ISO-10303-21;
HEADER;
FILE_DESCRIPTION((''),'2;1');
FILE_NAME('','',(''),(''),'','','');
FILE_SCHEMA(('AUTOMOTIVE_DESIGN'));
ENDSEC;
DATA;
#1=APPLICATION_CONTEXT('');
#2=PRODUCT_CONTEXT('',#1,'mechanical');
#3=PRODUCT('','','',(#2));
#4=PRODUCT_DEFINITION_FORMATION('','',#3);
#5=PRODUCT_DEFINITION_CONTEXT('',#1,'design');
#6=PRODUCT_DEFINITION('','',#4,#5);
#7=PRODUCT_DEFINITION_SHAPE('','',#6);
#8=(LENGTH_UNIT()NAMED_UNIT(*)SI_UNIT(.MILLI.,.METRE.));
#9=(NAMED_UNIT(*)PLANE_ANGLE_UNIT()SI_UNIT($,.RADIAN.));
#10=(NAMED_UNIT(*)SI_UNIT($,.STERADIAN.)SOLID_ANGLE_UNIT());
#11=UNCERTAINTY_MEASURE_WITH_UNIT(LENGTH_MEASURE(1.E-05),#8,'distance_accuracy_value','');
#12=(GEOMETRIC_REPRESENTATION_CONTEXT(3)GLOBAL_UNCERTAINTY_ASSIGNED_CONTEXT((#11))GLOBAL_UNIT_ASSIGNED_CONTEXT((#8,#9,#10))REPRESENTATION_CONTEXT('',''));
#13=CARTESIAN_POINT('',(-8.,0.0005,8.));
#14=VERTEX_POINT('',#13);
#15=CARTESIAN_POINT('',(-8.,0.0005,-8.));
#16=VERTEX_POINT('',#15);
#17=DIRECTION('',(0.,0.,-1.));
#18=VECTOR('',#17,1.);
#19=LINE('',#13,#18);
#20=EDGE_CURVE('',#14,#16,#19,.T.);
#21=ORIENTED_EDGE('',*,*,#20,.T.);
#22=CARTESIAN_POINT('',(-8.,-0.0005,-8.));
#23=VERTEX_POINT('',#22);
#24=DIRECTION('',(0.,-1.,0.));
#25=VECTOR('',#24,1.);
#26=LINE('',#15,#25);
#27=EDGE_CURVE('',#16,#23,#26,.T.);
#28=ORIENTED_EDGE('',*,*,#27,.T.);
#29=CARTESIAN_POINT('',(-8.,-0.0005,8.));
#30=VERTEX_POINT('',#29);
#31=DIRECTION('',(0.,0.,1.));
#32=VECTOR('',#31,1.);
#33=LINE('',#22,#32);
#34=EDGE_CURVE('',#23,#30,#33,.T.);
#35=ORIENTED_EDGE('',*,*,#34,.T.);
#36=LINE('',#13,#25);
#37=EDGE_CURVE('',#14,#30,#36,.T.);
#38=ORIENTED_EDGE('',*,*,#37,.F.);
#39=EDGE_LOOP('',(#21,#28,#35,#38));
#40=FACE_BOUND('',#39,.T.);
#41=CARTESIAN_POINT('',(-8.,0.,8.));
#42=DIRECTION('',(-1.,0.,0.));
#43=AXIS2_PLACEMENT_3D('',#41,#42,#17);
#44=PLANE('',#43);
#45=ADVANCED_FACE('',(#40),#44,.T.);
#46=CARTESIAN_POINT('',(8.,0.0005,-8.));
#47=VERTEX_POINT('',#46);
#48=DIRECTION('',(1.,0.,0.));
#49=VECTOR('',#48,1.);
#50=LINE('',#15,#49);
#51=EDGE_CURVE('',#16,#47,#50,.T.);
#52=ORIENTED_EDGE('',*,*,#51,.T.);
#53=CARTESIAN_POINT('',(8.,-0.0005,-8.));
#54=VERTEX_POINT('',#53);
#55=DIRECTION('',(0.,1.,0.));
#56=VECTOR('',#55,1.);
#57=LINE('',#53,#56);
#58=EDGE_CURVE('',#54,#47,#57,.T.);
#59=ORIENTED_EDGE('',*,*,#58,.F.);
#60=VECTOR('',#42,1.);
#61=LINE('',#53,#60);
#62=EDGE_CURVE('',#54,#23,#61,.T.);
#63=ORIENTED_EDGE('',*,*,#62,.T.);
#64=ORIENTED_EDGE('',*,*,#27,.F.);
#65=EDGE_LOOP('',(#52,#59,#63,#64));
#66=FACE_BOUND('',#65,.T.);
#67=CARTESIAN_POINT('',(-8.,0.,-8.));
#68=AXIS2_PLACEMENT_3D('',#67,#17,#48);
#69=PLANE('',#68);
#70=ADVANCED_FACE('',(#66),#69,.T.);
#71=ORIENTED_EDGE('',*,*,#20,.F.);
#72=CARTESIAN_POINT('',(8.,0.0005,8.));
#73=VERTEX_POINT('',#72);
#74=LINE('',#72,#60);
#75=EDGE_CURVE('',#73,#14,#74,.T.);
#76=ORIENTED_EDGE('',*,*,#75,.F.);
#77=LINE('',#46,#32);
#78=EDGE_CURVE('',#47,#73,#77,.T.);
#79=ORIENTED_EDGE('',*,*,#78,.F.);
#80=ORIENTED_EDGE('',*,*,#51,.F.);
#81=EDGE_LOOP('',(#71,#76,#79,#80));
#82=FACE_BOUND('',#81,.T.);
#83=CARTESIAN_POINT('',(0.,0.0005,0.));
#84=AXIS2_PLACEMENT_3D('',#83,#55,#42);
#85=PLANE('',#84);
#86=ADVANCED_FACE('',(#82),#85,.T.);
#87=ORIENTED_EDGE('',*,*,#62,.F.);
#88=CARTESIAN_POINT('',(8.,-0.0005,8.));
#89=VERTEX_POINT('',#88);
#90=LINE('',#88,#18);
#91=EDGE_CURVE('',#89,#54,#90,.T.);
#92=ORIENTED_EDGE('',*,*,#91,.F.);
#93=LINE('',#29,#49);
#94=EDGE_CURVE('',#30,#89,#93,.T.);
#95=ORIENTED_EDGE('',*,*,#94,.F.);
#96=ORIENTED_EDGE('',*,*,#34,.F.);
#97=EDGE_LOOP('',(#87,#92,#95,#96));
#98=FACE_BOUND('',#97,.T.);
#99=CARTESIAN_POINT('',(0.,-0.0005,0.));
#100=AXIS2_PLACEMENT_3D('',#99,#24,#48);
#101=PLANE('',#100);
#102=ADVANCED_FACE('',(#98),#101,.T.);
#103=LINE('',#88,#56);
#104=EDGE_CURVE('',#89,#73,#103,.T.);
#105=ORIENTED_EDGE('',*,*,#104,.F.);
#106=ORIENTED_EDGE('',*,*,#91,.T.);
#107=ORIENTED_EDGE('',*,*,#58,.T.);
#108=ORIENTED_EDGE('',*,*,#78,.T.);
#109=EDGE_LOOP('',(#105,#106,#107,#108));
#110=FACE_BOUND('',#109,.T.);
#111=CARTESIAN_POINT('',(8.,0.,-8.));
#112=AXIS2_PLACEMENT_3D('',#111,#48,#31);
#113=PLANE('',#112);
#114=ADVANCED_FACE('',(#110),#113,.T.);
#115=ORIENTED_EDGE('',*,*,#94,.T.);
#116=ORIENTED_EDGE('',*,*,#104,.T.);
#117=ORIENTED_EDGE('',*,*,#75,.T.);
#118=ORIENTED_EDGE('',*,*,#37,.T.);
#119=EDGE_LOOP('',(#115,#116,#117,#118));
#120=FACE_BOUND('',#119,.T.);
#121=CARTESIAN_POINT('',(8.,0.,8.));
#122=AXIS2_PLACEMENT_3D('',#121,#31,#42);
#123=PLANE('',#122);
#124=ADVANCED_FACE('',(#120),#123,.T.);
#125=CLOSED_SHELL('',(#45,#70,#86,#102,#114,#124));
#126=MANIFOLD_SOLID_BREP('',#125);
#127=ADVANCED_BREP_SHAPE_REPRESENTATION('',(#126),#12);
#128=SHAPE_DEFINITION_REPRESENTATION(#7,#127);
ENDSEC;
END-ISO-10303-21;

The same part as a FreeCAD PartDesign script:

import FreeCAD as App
import Part
import Sketcher
Q = App.Units.Quantity

doc = App.newDocument("Part")
body = doc.addObject("PartDesign::Body", "Body")

# Sketch on XZ plane
sketch1 = body.newObject("Sketcher::SketchObject", "Sketch")
sketch1.AttachmentSupport = (doc.getObject("XZ_Plane"), [""])
sketch1.MapMode = "FlatFace"
sketch1.addGeometry([
    Part.LineSegment(App.Vector(-8, 8, 0), App.Vector(8, 8, 0)),
    Part.LineSegment(App.Vector(8, 8, 0), App.Vector(8, -8, 0)),
    Part.LineSegment(App.Vector(8, -8, 0), App.Vector(-8, -8, 0)),
    Part.LineSegment(App.Vector(-8, -8, 0), App.Vector(-8, 8, 0)),
], False)
sketch1.addConstraint([
    Sketcher.Constraint("Coincident", 0, 2, 1, 1),
    Sketcher.Constraint("Coincident", 1, 2, 2, 1),
    Sketcher.Constraint("Coincident", 2, 2, 3, 1),
    Sketcher.Constraint("Coincident", 3, 2, 0, 1),
    Sketcher.Constraint("Horizontal", 0),
    Sketcher.Constraint("Vertical", 1),
    Sketcher.Constraint("Horizontal", 2),
    Sketcher.Constraint("Vertical", 3),
    Sketcher.Constraint("Symmetric", 0, 2, 2, 2, -1, 1),
    Sketcher.Constraint("Equal", 2, 1),
    Sketcher.Constraint("DistanceX", 0, 1, 0, 2, Q("16 mm")),
])
pad1 = body.newObject("PartDesign::Pad", "Pad")
pad1.Profile = sketch1
pad1.Length = 0.0005
pad1.Reversed = True

# Sketch on XZ plane
sketch2 = body.newObject("Sketcher::SketchObject", "Sketch001")
sketch2.AttachmentSupport = (doc.getObject("XZ_Plane"), [""])
sketch2.MapMode = "FlatFace"
sketch2.addGeometry([
    Part.LineSegment(App.Vector(-8, -8, 0), App.Vector(8, -8, 0)),
    Part.LineSegment(App.Vector(8, -8, 0), App.Vector(8, 8, 0)),
    Part.LineSegment(App.Vector(8, 8, 0), App.Vector(-8, 8, 0)),
    Part.LineSegment(App.Vector(-8, 8, 0), App.Vector(-8, -8, 0)),
], False)
sketch2.addConstraint([
    Sketcher.Constraint("Coincident", 0, 2, 1, 1),
    Sketcher.Constraint("Coincident", 1, 2, 2, 1),
    Sketcher.Constraint("Coincident", 2, 2, 3, 1),
    Sketcher.Constraint("Coincident", 3, 2, 0, 1),
    Sketcher.Constraint("Horizontal", 0),
    Sketcher.Constraint("Vertical", 1),
    Sketcher.Constraint("Horizontal", 2),
    Sketcher.Constraint("Vertical", 3),
    Sketcher.Constraint("Symmetric", 0, 2, 2, 2, -1, 1),
    Sketcher.Constraint("Equal", 2, 1),
    Sketcher.Constraint("DistanceX", 0, 1, 0, 2, Q("16 mm")),
])
pad2 = body.newObject("PartDesign::Pad", "Pad001")
pad2.Profile = sketch2
pad2.Length = 0.0005

doc.recompute()
